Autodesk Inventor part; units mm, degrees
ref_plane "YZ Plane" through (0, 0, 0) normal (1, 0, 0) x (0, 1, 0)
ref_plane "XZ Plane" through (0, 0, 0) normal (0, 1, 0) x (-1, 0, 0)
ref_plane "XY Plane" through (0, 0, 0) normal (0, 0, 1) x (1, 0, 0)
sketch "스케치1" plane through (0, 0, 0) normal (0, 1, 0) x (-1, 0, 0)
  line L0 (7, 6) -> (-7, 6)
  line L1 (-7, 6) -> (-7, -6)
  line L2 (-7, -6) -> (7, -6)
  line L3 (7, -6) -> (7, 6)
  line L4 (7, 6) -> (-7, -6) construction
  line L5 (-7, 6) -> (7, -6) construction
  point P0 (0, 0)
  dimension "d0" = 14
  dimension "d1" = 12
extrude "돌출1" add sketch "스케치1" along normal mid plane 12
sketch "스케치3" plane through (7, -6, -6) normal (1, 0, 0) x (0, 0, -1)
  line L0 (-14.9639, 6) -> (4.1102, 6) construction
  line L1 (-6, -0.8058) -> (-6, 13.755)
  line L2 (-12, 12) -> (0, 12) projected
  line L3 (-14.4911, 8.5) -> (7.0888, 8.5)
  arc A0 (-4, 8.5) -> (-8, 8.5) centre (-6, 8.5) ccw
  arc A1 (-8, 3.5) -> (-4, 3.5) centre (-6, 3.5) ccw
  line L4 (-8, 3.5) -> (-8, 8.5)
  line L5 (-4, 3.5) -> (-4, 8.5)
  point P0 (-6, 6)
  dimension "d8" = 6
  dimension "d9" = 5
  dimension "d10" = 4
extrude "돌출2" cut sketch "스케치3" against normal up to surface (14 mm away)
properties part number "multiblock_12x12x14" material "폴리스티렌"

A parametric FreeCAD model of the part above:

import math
import FreeCAD as App
import Part
import Sketcher

doc = App.newDocument("Part")
body = doc.addObject("PartDesign::Body", "Body")

sketch1 = doc.addObject("Sketcher::SketchObject", "Sketch")
body.addObject(sketch1)
sketch1.AttachmentSupport = (doc.XZ_Plane, [""])
sketch1.MapMode = "FlatFace"
sketch1.addGeometry([
    Part.LineSegment(App.Vector(-7, -6, 0), App.Vector(-7, 6, 0)),
    Part.LineSegment(App.Vector(-7, 6, 0), App.Vector(7, 6, 0)),
    Part.LineSegment(App.Vector(7, 6, 0), App.Vector(7, -6, 0)),
    Part.LineSegment(App.Vector(7, -6, 0), App.Vector(-7, -6, 0)),
], False)
sketch1.addConstraint([
    Sketcher.Constraint("Coincident", 0, 2, 1, 1),
    Sketcher.Constraint("Coincident", 1, 2, 2, 1),
    Sketcher.Constraint("Coincident", 2, 2, 3, 1),
    Sketcher.Constraint("Coincident", 3, 2, 0, 1),
    Sketcher.Constraint("Vertical", 0),
    Sketcher.Constraint("Horizontal", 1),
    Sketcher.Constraint("Vertical", 2),
    Sketcher.Constraint("Horizontal", 3),
    Sketcher.Constraint("Symmetric", 0, 2, 2, 2, -1, 1),
    Sketcher.Constraint("DistanceX", 1, 1, 1, 2, 14.0),
    Sketcher.Constraint("DistanceY", 0, 1, 0, 2, 12.0),
])
pad1 = doc.addObject("PartDesign::Pad", "Pad")
body.addObject(pad1)
pad1.Profile = sketch1
pad1.Length = 12
pad1.Midplane = True

sketch2 = doc.addObject("Sketcher::SketchObject", "Sketch001")
body.addObject(sketch2)
sketch2.AttachmentSupport = (doc.YZ_Plane, [""])
sketch2.MapMode = "FlatFace"
sketch2.AttachmentOffset = App.Placement(App.Vector(0, 0, 7), App.Rotation())
sketch2.addGeometry([
    Part.ArcOfCircle(Part.Circle(App.Vector(-2.5, 0, 0), App.Vector(0, 0, 1), 2), math.radians(90), math.radians(270)),
    Part.LineSegment(App.Vector(-2.5, -2, 0), App.Vector(2.5, -2, 0)),
    Part.ArcOfCircle(Part.Circle(App.Vector(2.5, 0, 0), App.Vector(0, 0, 1), 2), math.radians(-90), math.radians(90)),
    Part.LineSegment(App.Vector(2.5, 2, 0), App.Vector(-2.5, 2, 0)),
], False)
sketch2.addConstraint([
    Sketcher.Constraint("Tangent", 0, 2, 1, 1),
    Sketcher.Constraint("Tangent", 1, 2, 2, 1),
    Sketcher.Constraint("Tangent", 2, 2, 3, 1),
    Sketcher.Constraint("Tangent", 3, 2, 0, 1),
    Sketcher.Constraint("Horizontal", 1),
    Sketcher.Constraint("Horizontal", 3),
    Sketcher.Constraint("Symmetric", 0, 3, 2, 3, -1, 1),
    Sketcher.Constraint("Radius", 0, 2.0),
    Sketcher.Constraint("DistanceX", 1, 1, 1, 2, 5.0),
])
pocket1 = doc.addObject("PartDesign::Pocket", "Pocket")
body.addObject(pocket1)
pocket1.Profile = sketch2
pocket1.Length = 14

doc.recompute()
